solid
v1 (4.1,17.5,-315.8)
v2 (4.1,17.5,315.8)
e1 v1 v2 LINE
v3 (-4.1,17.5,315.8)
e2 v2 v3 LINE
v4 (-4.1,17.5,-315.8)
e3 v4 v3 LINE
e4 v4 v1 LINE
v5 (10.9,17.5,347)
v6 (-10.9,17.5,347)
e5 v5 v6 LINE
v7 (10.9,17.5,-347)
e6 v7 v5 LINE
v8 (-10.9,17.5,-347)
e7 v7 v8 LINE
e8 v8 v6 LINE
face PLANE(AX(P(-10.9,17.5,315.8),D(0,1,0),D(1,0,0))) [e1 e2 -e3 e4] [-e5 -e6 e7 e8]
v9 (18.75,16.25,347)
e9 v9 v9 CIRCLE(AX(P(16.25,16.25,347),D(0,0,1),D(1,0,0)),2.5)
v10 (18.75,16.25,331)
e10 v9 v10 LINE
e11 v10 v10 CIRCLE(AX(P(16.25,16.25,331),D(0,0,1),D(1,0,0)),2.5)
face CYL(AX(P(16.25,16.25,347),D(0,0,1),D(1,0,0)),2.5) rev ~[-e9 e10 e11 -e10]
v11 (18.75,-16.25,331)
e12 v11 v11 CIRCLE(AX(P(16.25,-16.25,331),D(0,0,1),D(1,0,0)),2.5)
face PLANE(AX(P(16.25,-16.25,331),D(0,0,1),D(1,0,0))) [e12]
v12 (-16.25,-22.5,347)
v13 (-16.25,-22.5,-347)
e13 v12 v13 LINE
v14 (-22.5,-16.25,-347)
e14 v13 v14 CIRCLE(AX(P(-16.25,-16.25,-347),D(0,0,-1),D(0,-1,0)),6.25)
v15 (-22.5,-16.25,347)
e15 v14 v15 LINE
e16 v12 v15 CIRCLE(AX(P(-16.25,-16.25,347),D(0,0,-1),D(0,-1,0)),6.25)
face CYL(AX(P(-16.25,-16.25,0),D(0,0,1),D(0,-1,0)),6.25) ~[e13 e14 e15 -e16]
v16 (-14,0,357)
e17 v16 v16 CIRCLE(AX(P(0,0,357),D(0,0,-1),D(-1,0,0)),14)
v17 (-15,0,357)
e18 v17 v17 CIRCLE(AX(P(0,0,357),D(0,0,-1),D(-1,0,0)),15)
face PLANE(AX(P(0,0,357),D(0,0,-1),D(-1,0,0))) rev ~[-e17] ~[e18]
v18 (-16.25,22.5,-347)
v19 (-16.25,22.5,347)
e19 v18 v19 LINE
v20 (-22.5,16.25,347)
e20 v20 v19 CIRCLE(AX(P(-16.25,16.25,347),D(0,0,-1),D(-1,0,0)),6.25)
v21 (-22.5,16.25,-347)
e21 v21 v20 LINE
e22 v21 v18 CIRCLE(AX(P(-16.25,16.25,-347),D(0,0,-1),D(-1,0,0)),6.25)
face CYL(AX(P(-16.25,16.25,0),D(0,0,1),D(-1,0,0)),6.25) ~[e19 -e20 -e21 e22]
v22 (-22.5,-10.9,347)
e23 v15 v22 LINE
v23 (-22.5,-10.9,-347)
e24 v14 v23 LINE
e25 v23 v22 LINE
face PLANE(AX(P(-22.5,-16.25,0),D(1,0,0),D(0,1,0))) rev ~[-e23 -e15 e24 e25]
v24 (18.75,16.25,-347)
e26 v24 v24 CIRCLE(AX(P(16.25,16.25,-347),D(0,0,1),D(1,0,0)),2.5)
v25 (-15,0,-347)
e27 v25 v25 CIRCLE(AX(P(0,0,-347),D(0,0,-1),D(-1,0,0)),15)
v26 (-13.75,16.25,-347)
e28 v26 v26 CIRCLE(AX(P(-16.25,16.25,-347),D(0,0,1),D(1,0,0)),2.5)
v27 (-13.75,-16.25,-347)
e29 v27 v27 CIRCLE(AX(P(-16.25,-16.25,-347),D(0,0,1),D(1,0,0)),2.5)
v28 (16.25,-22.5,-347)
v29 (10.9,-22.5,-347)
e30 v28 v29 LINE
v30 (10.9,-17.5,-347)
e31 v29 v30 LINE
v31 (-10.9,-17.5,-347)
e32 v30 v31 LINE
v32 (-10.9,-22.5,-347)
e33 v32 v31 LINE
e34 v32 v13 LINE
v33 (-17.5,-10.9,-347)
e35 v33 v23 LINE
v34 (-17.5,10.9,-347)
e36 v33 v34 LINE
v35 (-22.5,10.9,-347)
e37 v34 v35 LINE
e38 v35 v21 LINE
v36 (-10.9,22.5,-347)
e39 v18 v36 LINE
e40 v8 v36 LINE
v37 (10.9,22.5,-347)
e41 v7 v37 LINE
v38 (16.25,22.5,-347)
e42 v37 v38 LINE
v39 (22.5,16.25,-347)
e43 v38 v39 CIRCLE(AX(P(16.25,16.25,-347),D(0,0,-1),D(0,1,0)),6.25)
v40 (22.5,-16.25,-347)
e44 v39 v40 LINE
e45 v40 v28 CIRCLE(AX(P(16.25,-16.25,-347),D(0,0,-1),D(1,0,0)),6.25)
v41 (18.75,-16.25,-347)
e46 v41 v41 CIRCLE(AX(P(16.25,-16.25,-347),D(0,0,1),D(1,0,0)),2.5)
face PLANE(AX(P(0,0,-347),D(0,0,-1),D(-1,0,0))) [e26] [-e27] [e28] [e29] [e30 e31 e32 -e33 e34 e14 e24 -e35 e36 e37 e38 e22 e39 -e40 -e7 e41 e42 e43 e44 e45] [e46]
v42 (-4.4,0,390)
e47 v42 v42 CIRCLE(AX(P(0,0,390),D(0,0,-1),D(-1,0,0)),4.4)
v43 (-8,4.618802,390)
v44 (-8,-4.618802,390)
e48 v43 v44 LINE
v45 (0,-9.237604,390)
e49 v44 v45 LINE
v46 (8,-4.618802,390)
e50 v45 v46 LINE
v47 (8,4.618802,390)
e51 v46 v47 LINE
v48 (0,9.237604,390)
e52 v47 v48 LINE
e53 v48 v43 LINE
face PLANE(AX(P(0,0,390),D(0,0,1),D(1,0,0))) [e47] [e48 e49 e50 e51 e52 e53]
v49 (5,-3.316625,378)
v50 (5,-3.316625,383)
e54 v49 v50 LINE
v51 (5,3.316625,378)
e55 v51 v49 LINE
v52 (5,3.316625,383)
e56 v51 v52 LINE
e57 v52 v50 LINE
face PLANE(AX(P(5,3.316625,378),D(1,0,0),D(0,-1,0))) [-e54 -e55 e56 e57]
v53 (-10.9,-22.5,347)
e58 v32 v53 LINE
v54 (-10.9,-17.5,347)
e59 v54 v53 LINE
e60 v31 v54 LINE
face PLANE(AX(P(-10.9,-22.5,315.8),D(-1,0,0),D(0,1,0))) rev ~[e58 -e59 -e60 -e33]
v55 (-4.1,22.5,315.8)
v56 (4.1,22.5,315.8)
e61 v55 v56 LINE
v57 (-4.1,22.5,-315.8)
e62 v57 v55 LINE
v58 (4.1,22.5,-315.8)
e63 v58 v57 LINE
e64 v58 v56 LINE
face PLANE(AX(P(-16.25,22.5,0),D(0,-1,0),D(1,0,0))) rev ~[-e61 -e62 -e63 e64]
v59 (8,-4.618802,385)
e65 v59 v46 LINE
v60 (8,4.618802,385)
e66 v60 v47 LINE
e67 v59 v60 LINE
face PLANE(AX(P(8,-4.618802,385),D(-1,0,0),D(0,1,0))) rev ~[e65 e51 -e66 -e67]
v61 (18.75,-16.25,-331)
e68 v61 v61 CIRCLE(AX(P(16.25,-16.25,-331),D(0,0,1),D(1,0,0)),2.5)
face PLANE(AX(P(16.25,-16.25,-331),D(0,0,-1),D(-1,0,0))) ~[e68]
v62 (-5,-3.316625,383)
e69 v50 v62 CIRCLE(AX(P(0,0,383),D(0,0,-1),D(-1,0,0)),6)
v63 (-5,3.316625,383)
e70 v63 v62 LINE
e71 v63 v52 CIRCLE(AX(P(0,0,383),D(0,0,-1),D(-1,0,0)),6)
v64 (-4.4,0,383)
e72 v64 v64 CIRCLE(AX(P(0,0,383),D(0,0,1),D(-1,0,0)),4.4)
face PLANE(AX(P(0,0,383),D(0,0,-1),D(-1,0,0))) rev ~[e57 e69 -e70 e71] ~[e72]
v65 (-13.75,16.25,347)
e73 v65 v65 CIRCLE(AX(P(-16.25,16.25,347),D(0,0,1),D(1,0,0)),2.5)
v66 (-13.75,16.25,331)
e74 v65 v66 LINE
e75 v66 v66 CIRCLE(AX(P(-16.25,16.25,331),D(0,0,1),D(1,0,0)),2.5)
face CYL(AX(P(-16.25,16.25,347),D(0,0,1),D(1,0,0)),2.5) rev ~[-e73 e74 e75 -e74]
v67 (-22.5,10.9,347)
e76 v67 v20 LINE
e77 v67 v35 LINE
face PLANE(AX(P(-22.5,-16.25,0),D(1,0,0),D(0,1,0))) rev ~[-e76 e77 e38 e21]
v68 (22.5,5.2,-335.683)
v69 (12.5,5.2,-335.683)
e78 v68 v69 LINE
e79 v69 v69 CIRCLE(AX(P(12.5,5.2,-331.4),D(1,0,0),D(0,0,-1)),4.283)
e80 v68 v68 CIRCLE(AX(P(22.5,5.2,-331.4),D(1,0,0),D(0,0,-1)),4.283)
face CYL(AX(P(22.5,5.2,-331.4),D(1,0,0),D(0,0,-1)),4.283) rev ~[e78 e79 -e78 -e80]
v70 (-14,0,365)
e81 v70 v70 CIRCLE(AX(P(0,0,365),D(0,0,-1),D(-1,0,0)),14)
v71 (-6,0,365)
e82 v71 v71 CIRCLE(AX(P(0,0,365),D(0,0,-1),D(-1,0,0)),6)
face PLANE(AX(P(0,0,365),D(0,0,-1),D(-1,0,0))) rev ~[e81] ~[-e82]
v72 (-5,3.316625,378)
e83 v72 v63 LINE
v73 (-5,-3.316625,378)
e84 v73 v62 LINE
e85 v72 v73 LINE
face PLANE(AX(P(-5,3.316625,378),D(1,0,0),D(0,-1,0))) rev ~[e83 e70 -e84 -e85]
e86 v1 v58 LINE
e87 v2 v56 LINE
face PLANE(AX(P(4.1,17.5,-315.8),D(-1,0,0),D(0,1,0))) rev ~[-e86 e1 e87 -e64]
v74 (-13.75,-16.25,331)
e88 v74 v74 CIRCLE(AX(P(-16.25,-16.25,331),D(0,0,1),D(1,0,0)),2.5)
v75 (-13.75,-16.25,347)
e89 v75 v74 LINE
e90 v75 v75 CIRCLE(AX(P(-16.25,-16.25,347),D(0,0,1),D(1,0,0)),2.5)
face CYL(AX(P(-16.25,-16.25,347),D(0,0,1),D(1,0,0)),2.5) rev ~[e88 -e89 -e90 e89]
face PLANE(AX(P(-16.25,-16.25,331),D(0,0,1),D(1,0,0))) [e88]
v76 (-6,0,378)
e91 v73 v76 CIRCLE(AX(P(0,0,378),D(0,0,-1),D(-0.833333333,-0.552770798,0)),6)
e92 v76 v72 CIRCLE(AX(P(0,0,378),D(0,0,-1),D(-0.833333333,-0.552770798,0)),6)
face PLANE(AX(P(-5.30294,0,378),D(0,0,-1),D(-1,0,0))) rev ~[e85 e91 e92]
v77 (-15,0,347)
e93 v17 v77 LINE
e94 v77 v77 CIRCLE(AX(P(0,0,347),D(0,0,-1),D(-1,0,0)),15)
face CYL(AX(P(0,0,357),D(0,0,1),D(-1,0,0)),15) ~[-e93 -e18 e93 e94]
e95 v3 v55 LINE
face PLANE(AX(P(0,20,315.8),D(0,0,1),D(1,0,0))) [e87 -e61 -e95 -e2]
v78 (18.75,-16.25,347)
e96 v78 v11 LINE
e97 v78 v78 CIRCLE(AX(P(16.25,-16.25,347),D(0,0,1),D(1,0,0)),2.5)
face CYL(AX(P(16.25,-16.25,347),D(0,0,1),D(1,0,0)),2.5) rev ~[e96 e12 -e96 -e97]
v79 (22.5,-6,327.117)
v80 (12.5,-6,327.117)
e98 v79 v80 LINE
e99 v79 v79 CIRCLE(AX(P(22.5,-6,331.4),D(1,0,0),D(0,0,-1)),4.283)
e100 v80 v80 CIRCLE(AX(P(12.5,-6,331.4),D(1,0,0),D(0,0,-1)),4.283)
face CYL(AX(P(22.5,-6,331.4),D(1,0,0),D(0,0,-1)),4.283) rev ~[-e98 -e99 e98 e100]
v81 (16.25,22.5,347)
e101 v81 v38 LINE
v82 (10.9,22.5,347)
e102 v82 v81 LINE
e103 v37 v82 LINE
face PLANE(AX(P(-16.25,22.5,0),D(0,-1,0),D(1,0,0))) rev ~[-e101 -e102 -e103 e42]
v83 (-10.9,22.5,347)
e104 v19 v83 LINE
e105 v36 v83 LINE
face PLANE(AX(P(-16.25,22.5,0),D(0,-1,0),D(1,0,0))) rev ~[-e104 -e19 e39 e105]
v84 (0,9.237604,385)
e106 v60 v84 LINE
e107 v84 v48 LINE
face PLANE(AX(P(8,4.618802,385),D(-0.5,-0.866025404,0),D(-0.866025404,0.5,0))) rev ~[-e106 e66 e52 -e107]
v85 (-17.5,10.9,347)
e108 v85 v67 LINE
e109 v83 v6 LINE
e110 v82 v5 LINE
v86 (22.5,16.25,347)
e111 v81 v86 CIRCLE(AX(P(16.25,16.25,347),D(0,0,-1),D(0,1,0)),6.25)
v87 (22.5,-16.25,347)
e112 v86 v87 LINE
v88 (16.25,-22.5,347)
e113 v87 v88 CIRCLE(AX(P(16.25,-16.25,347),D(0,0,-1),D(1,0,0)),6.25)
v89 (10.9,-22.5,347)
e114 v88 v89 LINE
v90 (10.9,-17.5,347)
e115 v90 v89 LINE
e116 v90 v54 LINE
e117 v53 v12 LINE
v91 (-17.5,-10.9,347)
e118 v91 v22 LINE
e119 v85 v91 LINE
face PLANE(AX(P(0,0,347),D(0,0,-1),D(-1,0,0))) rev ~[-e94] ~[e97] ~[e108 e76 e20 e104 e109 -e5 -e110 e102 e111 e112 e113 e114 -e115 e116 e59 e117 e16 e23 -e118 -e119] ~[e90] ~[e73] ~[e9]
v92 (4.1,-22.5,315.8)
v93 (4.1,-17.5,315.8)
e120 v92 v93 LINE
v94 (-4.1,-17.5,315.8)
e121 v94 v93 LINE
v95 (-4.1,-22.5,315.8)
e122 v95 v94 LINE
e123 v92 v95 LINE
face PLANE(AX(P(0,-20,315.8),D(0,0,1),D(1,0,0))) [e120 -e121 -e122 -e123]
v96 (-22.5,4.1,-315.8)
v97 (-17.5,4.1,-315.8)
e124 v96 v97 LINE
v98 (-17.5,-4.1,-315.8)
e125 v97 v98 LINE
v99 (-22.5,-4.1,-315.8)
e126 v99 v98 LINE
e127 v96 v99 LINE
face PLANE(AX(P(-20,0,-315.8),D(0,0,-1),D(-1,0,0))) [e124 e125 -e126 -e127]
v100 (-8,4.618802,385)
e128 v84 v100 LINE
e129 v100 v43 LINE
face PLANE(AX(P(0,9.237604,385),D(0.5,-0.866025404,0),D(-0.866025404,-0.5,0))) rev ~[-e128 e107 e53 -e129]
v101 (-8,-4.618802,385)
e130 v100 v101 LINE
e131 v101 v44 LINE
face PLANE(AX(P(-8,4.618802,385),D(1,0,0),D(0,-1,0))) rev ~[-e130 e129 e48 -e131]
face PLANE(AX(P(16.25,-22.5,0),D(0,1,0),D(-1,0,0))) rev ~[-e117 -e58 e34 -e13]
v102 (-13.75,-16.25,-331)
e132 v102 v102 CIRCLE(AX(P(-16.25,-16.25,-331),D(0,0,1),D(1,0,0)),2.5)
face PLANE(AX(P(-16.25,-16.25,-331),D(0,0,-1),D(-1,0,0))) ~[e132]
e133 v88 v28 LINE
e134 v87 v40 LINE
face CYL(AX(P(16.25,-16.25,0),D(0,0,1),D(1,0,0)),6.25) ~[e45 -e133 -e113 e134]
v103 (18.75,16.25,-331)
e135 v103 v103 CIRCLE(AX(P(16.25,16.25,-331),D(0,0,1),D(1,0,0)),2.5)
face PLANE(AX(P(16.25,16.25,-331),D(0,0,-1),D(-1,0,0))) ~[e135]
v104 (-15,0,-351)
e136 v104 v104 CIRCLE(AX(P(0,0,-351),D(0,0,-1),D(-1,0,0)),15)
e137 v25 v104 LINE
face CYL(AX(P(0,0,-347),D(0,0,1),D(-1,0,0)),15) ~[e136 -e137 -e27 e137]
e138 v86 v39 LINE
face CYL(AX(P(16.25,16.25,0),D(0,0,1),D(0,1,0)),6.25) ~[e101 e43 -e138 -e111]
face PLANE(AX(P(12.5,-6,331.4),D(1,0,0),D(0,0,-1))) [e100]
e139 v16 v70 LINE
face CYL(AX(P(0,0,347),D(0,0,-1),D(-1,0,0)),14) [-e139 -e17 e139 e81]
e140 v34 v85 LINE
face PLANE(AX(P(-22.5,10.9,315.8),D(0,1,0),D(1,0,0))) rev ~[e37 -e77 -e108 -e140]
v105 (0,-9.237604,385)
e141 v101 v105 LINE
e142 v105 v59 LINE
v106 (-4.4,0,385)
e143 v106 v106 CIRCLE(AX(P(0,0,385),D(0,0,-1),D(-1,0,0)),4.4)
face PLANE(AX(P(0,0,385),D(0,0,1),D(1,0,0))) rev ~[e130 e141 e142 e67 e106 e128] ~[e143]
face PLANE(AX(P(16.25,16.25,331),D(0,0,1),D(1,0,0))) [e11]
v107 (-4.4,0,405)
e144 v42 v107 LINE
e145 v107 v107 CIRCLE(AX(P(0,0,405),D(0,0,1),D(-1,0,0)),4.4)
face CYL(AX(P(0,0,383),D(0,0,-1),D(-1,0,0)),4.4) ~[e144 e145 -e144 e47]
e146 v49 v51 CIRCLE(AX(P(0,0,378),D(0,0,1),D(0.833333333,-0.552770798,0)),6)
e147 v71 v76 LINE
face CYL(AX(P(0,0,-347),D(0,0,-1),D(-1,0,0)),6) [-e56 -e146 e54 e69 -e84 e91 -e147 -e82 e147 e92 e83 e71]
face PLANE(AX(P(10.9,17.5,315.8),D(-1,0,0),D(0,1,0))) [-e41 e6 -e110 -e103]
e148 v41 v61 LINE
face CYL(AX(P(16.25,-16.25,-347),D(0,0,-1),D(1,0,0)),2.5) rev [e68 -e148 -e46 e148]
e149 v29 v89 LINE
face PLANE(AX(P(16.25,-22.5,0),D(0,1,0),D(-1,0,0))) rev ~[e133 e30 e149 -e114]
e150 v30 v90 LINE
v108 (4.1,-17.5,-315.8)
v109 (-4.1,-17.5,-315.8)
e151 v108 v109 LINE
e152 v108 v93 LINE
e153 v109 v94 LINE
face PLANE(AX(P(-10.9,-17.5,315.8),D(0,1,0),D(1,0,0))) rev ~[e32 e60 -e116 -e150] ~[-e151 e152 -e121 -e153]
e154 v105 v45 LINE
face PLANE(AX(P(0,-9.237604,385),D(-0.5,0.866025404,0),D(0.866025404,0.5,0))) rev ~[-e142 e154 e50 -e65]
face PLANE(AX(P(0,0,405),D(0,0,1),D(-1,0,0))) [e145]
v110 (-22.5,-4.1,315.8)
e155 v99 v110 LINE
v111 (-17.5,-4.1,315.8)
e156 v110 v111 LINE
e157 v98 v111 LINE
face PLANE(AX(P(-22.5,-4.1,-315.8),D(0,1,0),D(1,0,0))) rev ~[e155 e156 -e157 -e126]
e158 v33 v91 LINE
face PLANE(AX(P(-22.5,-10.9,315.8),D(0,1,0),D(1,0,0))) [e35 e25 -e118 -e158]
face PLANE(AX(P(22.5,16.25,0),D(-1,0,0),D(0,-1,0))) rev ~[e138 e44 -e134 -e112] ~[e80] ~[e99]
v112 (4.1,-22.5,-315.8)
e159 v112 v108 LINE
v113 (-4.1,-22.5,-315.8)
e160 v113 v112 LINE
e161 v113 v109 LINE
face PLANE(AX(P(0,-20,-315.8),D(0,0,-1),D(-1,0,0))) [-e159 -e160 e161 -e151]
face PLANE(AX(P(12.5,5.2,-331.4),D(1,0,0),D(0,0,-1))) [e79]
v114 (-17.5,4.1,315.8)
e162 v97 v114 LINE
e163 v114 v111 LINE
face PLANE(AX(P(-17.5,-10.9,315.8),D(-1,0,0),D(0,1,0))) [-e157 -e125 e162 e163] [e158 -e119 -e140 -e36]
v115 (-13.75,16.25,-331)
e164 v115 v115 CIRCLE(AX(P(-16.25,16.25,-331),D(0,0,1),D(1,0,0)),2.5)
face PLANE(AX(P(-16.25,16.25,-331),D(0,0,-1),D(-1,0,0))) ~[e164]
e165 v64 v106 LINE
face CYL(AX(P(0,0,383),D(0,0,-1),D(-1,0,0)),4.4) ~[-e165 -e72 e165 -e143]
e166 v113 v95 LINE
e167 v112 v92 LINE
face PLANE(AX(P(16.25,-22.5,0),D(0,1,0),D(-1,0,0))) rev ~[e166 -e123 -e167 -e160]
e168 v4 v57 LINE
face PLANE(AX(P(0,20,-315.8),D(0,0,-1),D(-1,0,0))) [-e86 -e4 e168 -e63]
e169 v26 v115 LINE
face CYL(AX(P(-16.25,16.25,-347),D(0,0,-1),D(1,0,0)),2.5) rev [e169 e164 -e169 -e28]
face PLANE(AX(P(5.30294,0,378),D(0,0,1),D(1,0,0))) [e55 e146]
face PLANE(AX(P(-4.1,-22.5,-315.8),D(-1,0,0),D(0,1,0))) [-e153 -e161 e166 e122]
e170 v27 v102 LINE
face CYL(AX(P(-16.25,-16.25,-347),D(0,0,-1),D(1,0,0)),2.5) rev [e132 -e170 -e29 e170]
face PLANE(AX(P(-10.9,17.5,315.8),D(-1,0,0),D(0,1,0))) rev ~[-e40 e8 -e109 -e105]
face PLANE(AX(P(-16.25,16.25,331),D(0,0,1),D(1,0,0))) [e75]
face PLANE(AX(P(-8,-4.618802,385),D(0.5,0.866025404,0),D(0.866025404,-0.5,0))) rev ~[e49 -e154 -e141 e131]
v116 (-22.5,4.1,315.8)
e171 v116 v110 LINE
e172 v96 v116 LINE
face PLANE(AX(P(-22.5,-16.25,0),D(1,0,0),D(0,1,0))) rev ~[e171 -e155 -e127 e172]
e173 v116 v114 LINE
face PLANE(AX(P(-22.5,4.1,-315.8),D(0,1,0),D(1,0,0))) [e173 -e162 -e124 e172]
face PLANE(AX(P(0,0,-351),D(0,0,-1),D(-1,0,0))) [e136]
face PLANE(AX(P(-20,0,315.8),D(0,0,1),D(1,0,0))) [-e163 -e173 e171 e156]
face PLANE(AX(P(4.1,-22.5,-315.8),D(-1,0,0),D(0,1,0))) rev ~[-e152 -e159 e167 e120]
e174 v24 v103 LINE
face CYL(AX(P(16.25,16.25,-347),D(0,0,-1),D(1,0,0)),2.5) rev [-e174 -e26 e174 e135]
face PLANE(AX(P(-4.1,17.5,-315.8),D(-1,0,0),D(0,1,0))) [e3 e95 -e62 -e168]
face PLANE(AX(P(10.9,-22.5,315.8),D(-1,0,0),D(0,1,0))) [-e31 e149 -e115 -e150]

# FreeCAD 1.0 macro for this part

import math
import FreeCAD as App
import Part
import Sketcher

V = App.Vector
Q = App.Units.Quantity

doc = App.newDocument("Part")
params = doc.addObject("Spreadsheet::Sheet", "Params")
for row, (alias, value) in enumerate([
    ("sketch1_radius", "6.25 mm"),
    ("sketch1_width", "32.5 mm"),
    ("pad1_length", "694 mm"),
    ("sketch2_diameter", "5 mm"),
    ("pocket1_length", "16 mm"),
    ("pocket2_length", "10 mm"),
    ("sketch4_diameter", "30 mm"),
    ("pad2_length", "4 mm"),
    ("sketch5_diameter", "30 mm"),
    ("pad3_length", "10 mm"),
    ("sketch6_diameter", "28 mm"),
    ("pad4_length", "18 mm"),
    ("sketch7_diameter", "12 mm"),
    ("pad5_length", "730 mm"),
    ("sketch8_diameter", "8.8 mm"),
    ("pad6_length", "22 mm"),
    ("sketch9_radius", "6 mm"),
    ("pocket3_length", "5 mm"),
    ("sketch10_width", "5 mm"),
    ("sketch10_width2", "6.8 mm"),
    ("pocket4_length", "631.6 mm"),
    ("sketch11_height", "5 mm"),
    ("sketch11_width", "21.8 mm"),
    ("sketch12_width", "5 mm"),
    ("sketch12_height", "21.8 mm"),
    ("sketch13_height", "5 mm"),
    ("sketch13_width", "21.8 mm"),
    ("sketch14_height", "5 mm"),
    ("sketch14_width", "21.8 mm"),
    ("sketch15_width", "5 mm"),
    ("sketch15_height", "21.8 mm"),
    ("sketch16_height", "5 mm"),
    ("sketch16_width", "21.8 mm"),
    ("pad7_length", "5 mm"),
], start=1):
    params.set(f"A{row}", alias)
    params.set(f"B{row}", "=" + value)
    params.setAlias(f"B{row}", alias)

body = doc.addObject("PartDesign::Body", "Body")

# Sketch on XY plane
sketch1 = body.newObject("Sketcher::SketchObject", "Sketch")
sketch1.AttachmentSupport = (doc.getObject("XY_Plane"), [""])
sketch1.MapMode = "FlatFace"
sketch1.addGeometry(Part.LineSegment(V(16, 22, 0), V(-16, 22, 0)), False)
sketch1.addGeometry(Part.ArcOfCircle(Part.Circle(V(-16, 16, 0), V(0, 0, 1), 6), math.radians(90), math.radians(180)), False)
sketch1.addGeometry(Part.LineSegment(V(-22, 16, 0), V(-22, -16, 0)), False)
sketch1.addGeometry(Part.ArcOfCircle(Part.Circle(V(-16, -16, 0), V(0, 0, 1), 6), math.radians(-180), math.radians(-90)), False)
sketch1.addGeometry(Part.LineSegment(V(-16, -22, 0), V(16, -22, 0)), False)
sketch1.addGeometry(Part.ArcOfCircle(Part.Circle(V(16, -16, 0), V(0, 0, 1), 6), math.radians(-90), math.radians(0)), False)
sketch1.addGeometry(Part.LineSegment(V(22, -16, 0), V(22, 16, 0)), False)
sketch1.addGeometry(Part.ArcOfCircle(Part.Circle(V(16, 16, 0), V(0, 0, 1), 6), math.radians(0), math.radians(90)), False)
sketch1.addConstraint(Sketcher.Constraint("Tangent", 0, 2, 1, 1))
sketch1.addConstraint(Sketcher.Constraint("Tangent", 1, 2, 2, 1))
sketch1.addConstraint(Sketcher.Constraint("Tangent", 2, 2, 3, 1))
sketch1.addConstraint(Sketcher.Constraint("Tangent", 3, 2, 4, 1))
sketch1.addConstraint(Sketcher.Constraint("Tangent", 4, 2, 5, 1))
sketch1.addConstraint(Sketcher.Constraint("Tangent", 5, 2, 6, 1))
sketch1.addConstraint(Sketcher.Constraint("Tangent", 6, 2, 7, 1))
sketch1.addConstraint(Sketcher.Constraint("Tangent", 7, 2, 0, 1))
sketch1.addConstraint(Sketcher.Constraint("Horizontal", 0))
sketch1.addConstraint(Sketcher.Constraint("Vertical", 2))
sketch1.addConstraint(Sketcher.Constraint("Horizontal", 4))
sketch1.addConstraint(Sketcher.Constraint("Vertical", 6))
sketch1.addConstraint(Sketcher.Constraint("Equal", 1, 3))
sketch1.addConstraint(Sketcher.Constraint("Equal", 3, 5))
sketch1.addConstraint(Sketcher.Constraint("Equal", 5, 7))
sketch1.addConstraint(Sketcher.Constraint("Symmetric", 1, 3, 5, 3, -1, 1))
sketch1.addConstraint(Sketcher.Constraint("Equal", 4, 2))
sketch1.addConstraint(Sketcher.Constraint("Radius", 1, Q("6.25 mm")))
sketch1.addConstraint(Sketcher.Constraint("DistanceX", 0, 2, 0, 1, Q("32.5 mm")))
sketch1.setExpression("Constraints[17]", "Params.sketch1_radius")
sketch1.setExpression("Constraints[18]", "Params.sketch1_width")
pad1 = body.newObject("PartDesign::Pad", "Pad")
pad1.Profile = sketch1
pad1.setExpression("Length", "Params.pad1_length")
pad1.Midplane = True

# Sketch on XY plane
sketch2 = body.newObject("Sketcher::SketchObject", "Sketch001")
sketch2.AttachmentSupport = (doc.getObject("XY_Plane"), [""])
sketch2.MapMode = "FlatFace"
sketch2.AttachmentOffset = App.Placement(V(0, 0, 347), App.Rotation())
sketch2.addGeometry(Part.Circle(V(16.2, 16.2, 0), V(0, 0, 1), 2.5), False)
sketch2.addGeometry(Part.Circle(V(-16.2, 16.2, 0), V(0, 0, 1), 2.5), False)
sketch2.addGeometry(Part.Circle(V(-16.2, -16.2, 0), V(0, 0, 1), 2.5), False)
sketch2.addGeometry(Part.Circle(V(16.2, -16.2, 0), V(0, 0, 1), 2.5), False)
sketch2.addConstraint(Sketcher.Constraint("Equal", 0, 1))
sketch2.addConstraint(Sketcher.Constraint("Equal", 1, 2))
sketch2.addConstraint(Sketcher.Constraint("Equal", 2, 3))
sketch2.addConstraint(Sketcher.Constraint("Symmetric", 0, 3, 2, 3, -1, 1))
sketch2.addConstraint(Sketcher.Constraint("Symmetric", 1, 3, 3, 3, -1, 1))
sketch2.addConstraint(Sketcher.Constraint("Symmetric", 0, 3, 1, 3, -2))
sketch2.addConstraint(Sketcher.Constraint("Diameter", 0, Q("5 mm")))
sketch2.addConstraint(Sketcher.Constraint("DistanceX", 1, 3, 0, 3, Q("32.5 mm")))
sketch2.addConstraint(Sketcher.Constraint("DistanceY", 2, 3, 1, 3, Q("32.5 mm")))
sketch2.setExpression("Constraints[6]", "Params.sketch2_diameter")
pocket1 = body.newObject("PartDesign::Pocket", "Pocket")
pocket1.Profile = sketch2
pocket1.setExpression("Length", "Params.pocket1_length")
doc.recompute()

mirrored = body.newObject("PartDesign::Mirrored", "Mirrored")
mirrored.Originals = [pocket1]
mirrored.MirrorPlane = (doc.getObject("XY_Plane"), [""])
body.Tip = mirrored

# Sketch on YZ plane
sketch3 = body.newObject("Sketcher::SketchObject", "Sketch002")
sketch3.AttachmentSupport = (doc.getObject("YZ_Plane"), [""])
sketch3.MapMode = "FlatFace"
sketch3.AttachmentOffset = App.Placement(V(0, 0, 22.5), App.Rotation())
sketch3.addGeometry(Part.Circle(V(-6, 331.4, 0), V(0, 0, 1), 4.3), False)
sketch3.addGeometry(Part.Circle(V(5.2, -331.4, 0), V(0, 0, 1), 4.3), False)
sketch3.addConstraint(Sketcher.Constraint("Equal", 0, 1))
sketch3.addConstraint(Sketcher.Constraint("Diameter", 0, Q("8.566 mm")))
sketch3.addConstraint(Sketcher.Constraint("DistanceX", 0, 3, -1, 1, Q("6 mm")))
sketch3.addConstraint(Sketcher.Constraint("DistanceY", -1, 1, 0, 3, Q("331.4 mm")))
sketch3.addConstraint(Sketcher.Constraint("DistanceX", -1, 1, 1, 3, Q("5.2 mm")))
sketch3.addConstraint(Sketcher.Constraint("DistanceY", 1, 3, -1, 1, Q("331.4 mm")))
pocket2 = body.newObject("PartDesign::Pocket", "Pocket001")
pocket2.Profile = sketch3
pocket2.setExpression("Length", "Params.pocket2_length")

# Sketch on XY plane
sketch4 = body.newObject("Sketcher::SketchObject", "Sketch003")
sketch4.AttachmentSupport = (doc.getObject("XY_Plane"), [""])
sketch4.MapMode = "FlatFace"
sketch4.AttachmentOffset = App.Placement(V(0, 0, -347), App.Rotation())
sketch4.addGeometry(Part.Circle(V(0, 0, 0), V(0, 0, 1), 15), False)
sketch4.addConstraint(Sketcher.Constraint("Coincident", 0, 3, -1, 1))
sketch4.addConstraint(Sketcher.Constraint("Diameter", 0, Q("30 mm")))
sketch4.setExpression("Constraints[1]", "Params.sketch4_diameter")
pad2 = body.newObject("PartDesign::Pad", "Pad001")
pad2.Profile = sketch4
pad2.setExpression("Length", "Params.pad2_length")
pad2.Reversed = True

# Sketch on XY plane
sketch5 = body.newObject("Sketcher::SketchObject", "Sketch004")
sketch5.AttachmentSupport = (doc.getObject("XY_Plane"), [""])
sketch5.MapMode = "FlatFace"
sketch5.AttachmentOffset = App.Placement(V(0, 0, 357), App.Rotation())
sketch5.addGeometry(Part.Circle(V(0, 0, 0), V(0, 0, 1), 15), False)
sketch5.addConstraint(Sketcher.Constraint("Coincident", 0, 3, -1, 1))
sketch5.addConstraint(Sketcher.Constraint("Diameter", 0, Q("30 mm")))
sketch5.setExpression("Constraints[1]", "Params.sketch5_diameter")
pad3 = body.newObject("PartDesign::Pad", "Pad002")
pad3.Profile = sketch5
pad3.setExpression("Length", "Params.pad3_length")
pad3.Reversed = True

# Sketch on XY plane
sketch6 = body.newObject("Sketcher::SketchObject", "Sketch005")
sketch6.AttachmentSupport = (doc.getObject("XY_Plane"), [""])
sketch6.MapMode = "FlatFace"
sketch6.AttachmentOffset = App.Placement(V(0, 0, 347), App.Rotation())
sketch6.addGeometry(Part.Circle(V(0, 0, 0), V(0, 0, 1), 14), False)
sketch6.addConstraint(Sketcher.Constraint("Coincident", 0, 3, -1, 1))
sketch6.addConstraint(Sketcher.Constraint("Diameter", 0, Q("28 mm")))
sketch6.setExpression("Constraints[1]", "Params.sketch6_diameter")
pad4 = body.newObject("PartDesign::Pad", "Pad003")
pad4.Profile = sketch6
pad4.setExpression("Length", "Params.pad4_length")

# Sketch on XY plane
sketch7 = body.newObject("Sketcher::SketchObject", "Sketch006")
sketch7.AttachmentSupport = (doc.getObject("XY_Plane"), [""])
sketch7.MapMode = "FlatFace"
sketch7.AttachmentOffset = App.Placement(V(0, 0, -347), App.Rotation())
sketch7.addGeometry(Part.Circle(V(0, 0, 0), V(0, 0, 1), 6), False)
sketch7.addConstraint(Sketcher.Constraint("Coincident", 0, 3, -1, 1))
sketch7.addConstraint(Sketcher.Constraint("Diameter", 0, Q("12 mm")))
sketch7.setExpression("Constraints[1]", "Params.sketch7_diameter")
pad5 = body.newObject("PartDesign::Pad", "Pad004")
pad5.Profile = sketch7
pad5.setExpression("Length", "Params.pad5_length")

# Sketch on XY plane
sketch8 = body.newObject("Sketcher::SketchObject", "Sketch007")
sketch8.AttachmentSupport = (doc.getObject("XY_Plane"), [""])
sketch8.MapMode = "FlatFace"
sketch8.AttachmentOffset = App.Placement(V(0, 0, 383), App.Rotation())
sketch8.addGeometry(Part.Circle(V(0, 0, 0), V(0, 0, 1), 4.4), False)
sketch8.addConstraint(Sketcher.Constraint("Coincident", 0, 3, -1, 1))
sketch8.addConstraint(Sketcher.Constraint("Diameter", 0, Q("8.8 mm")))
sketch8.setExpression("Constraints[1]", "Params.sketch8_diameter")
pad6 = body.newObject("PartDesign::Pad", "Pad005")
pad6.Profile = sketch8
pad6.setExpression("Length", "Params.pad6_length")

# Sketch on XY plane
sketch9 = body.newObject("Sketcher::SketchObject", "Sketch008")
sketch9.AttachmentSupport = (doc.getObject("XY_Plane"), [""])
sketch9.MapMode = "FlatFace"
sketch9.AttachmentOffset = App.Placement(V(0, 0, 378), App.Rotation())
sketch9.addGeometry(Part.LineSegment(V(-5, -3, 0), V(-5, 3, 0)), False)
sketch9.addGeometry(Part.ArcOfCircle(Part.Circle(V(0, 0, 0), V(0, 0, 1), 6), math.radians(146), math.radians(214)), False)
sketch9.addGeometry(Part.LineSegment(V(5, 3, 0), V(5, -3, 0)), False)
sketch9.addGeometry(Part.ArcOfCircle(Part.Circle(V(0, 0, 0), V(0, 0, 1), 6), math.radians(-34), math.radians(34)), False)
sketch9.addConstraint(Sketcher.Constraint("Coincident", 0, 1, 1, 2))
sketch9.addConstraint(Sketcher.Constraint("Coincident", 1, 1, 0, 2))
sketch9.addConstraint(Sketcher.Constraint("Coincident", 2, 1, 3, 2))
sketch9.addConstraint(Sketcher.Constraint("Coincident", 3, 1, 2, 2))
sketch9.addConstraint(Sketcher.Constraint("Vertical", 0))
sketch9.addConstraint(Sketcher.Constraint("Vertical", 2))
sketch9.addConstraint(Sketcher.Constraint("Coincident", 1, 3, -1, 1))
sketch9.addConstraint(Sketcher.Constraint("Coincident", 3, 3, -1, 1))
sketch9.addConstraint(Sketcher.Constraint("Equal", 1, 3))
sketch9.addConstraint(Sketcher.Constraint("Horizontal", 1, 1, 2, 1))
sketch9.addConstraint(Sketcher.Constraint("Radius", 1, Q("6 mm")))
sketch9.addConstraint(Sketcher.Constraint("DistanceX", 0, 1, -1, 1, Q("5 mm")))
sketch9.setExpression("Constraints[10]", "Params.sketch9_radius")
pocket3 = body.newObject("PartDesign::Pocket", "Pocket002")
pocket3.Profile = sketch9
pocket3.setExpression("Length", "Params.pocket3_length")
pocket3.Reversed = True

# Sketch on XY plane
sketch10 = body.newObject("Sketcher::SketchObject", "Sketch009")
sketch10.AttachmentSupport = (doc.getObject("XY_Plane"), [""])
sketch10.MapMode = "FlatFace"
sketch10.AttachmentOffset = App.Placement(V(0, 0, -315.8), App.Rotation())
sketch10.addGeometry(Part.LineSegment(V(-11, 22, 0), V(-11, 18, 0)), False)
sketch10.addGeometry(Part.LineSegment(V(-11, 18, 0), V(-4, 18, 0)), False)
sketch10.addGeometry(Part.LineSegment(V(-4, 18, 0), V(-4, 22, 0)), False)
sketch10.addGeometry(Part.LineSegment(V(-4, 22, 0), V(-11, 22, 0)), False)
sketch10.addGeometry(Part.LineSegment(V(4, 22, 0), V(4, 18, 0)), False)
sketch10.addGeometry(Part.LineSegment(V(4, 18, 0), V(11, 18, 0)), False)
sketch10.addGeometry(Part.LineSegment(V(11, 18, 0), V(11, 22, 0)), False)
sketch10.addGeometry(Part.LineSegment(V(11, 22, 0), V(4, 22, 0)), False)
sketch10.addGeometry(Part.LineSegment(V(4, -18, 0), V(4, -22, 0)), False)
sketch10.addGeometry(Part.LineSegment(V(4, -22, 0), V(11, -22, 0)), False)
sketch10.addGeometry(Part.LineSegment(V(11, -22, 0), V(11, -18, 0)), False)
sketch10.addGeometry(Part.LineSegment(V(11, -18, 0), V(4, -18, 0)), False)
sketch10.addGeometry(Part.LineSegment(V(-11, -18, 0), V(-11, -22, 0)), False)
sketch10.addGeometry(Part.LineSegment(V(-11, -22, 0), V(-4, -22, 0)), False)
sketch10.addGeometry(Part.LineSegment(V(-4, -22, 0), V(-4, -18, 0)), False)
sketch10.addGeometry(Part.LineSegment(V(-4, -18, 0), V(-11, -18, 0)), False)
sketch10.addGeometry(Part.LineSegment(V(-22, -4, 0), V(-22, -11, 0)), False)
sketch10.addGeometry(Part.LineSegment(V(-22, -11, 0), V(-18, -11, 0)), False)
sketch10.addGeometry(Part.LineSegment(V(-18, -11, 0), V(-18, -4, 0)), False)
sketch10.addGeometry(Part.LineSegment(V(-18, -4, 0), V(-22, -4, 0)), False)
sketch10.addGeometry(Part.LineSegment(V(-22, 11, 0), V(-22, 4, 0)), False)
sketch10.addGeometry(Part.LineSegment(V(-22, 4, 0), V(-18, 4, 0)), False)
sketch10.addGeometry(Part.LineSegment(V(-18, 4, 0), V(-18, 11, 0)), False)
sketch10.addGeometry(Part.LineSegment(V(-18, 11, 0), V(-22, 11, 0)), False)
sketch10.addConstraint(Sketcher.Constraint("Coincident", 0, 2, 1, 1))
sketch10.addConstraint(Sketcher.Constraint("Coincident", 1, 2, 2, 1))
sketch10.addConstraint(Sketcher.Constraint("Coincident", 2, 2, 3, 1))
sketch10.addConstraint(Sketcher.Constraint("Coincident", 3, 2, 0, 1))
sketch10.addConstraint(Sketcher.Constraint("Coincident", 4, 2, 5, 1))
sketch10.addConstraint(Sketcher.Constraint("Coincident", 5, 2, 6, 1))
sketch10.addConstraint(Sketcher.Constraint("Coincident", 6, 2, 7, 1))
sketch10.addConstraint(Sketcher.Constraint("Coincident", 7, 2, 4, 1))
sketch10.addConstraint(Sketcher.Constraint("Coincident", 8, 2, 9, 1))
sketch10.addConstraint(Sketcher.Constraint("Coincident", 9, 2, 10, 1))
sketch10.addConstraint(Sketcher.Constraint("Coincident", 10, 2, 11, 1))
sketch10.addConstraint(Sketcher.Constraint("Coincident", 11, 2, 8, 1))
sketch10.addConstraint(Sketcher.Constraint("Coincident", 12, 2, 13, 1))
sketch10.addConstraint(Sketcher.Constraint("Coincident", 13, 2, 14, 1))
sketch10.addConstraint(Sketcher.Constraint("Coincident", 14, 2, 15, 1))
sketch10.addConstraint(Sketcher.Constraint("Coincident", 15, 2, 12, 1))
sketch10.addConstraint(Sketcher.Constraint("Coincident", 16, 2, 17, 1))
sketch10.addConstraint(Sketcher.Constraint("Coincident", 17, 2, 18, 1))
sketch10.addConstraint(Sketcher.Constraint("Coincident", 18, 2, 19, 1))
sketch10.addConstraint(Sketcher.Constraint("Coincident", 19, 2, 16, 1))
sketch10.addConstraint(Sketcher.Constraint("Coincident", 20, 2, 21, 1))
sketch10.addConstraint(Sketcher.Constraint("Coincident", 21, 2, 22, 1))
sketch10.addConstraint(Sketcher.Constraint("Coincident", 22, 2, 23, 1))
sketch10.addConstraint(Sketcher.Constraint("Coincident", 23, 2, 20, 1))
sketch10.addConstraint(Sketcher.Constraint("Vertical", 0))
sketch10.addConstraint(Sketcher.Constraint("Horizontal", 1))
sketch10.addConstraint(Sketcher.Constraint("Vertical", 2))
sketch10.addConstraint(Sketcher.Constraint("Horizontal", 3))
sketch10.addConstraint(Sketcher.Constraint("Vertical", 4))
sketch10.addConstraint(Sketcher.Constraint("Horizontal", 5))
sketch10.addConstraint(Sketcher.Constraint("Vertical", 6))
sketch10.addConstraint(Sketcher.Constraint("Horizontal", 7))
sketch10.addConstraint(Sketcher.Constraint("Vertical", 8))
sketch10.addConstraint(Sketcher.Constraint("Horizontal", 9))
sketch10.addConstraint(Sketcher.Constraint("Vertical", 10))
sketch10.addConstraint(Sketcher.Constraint("Horizontal", 11))
sketch10.addConstraint(Sketcher.Constraint("Vertical", 12))
sketch10.addConstraint(Sketcher.Constraint("Horizontal", 13))
sketch10.addConstraint(Sketcher.Constraint("Vertical", 14))
sketch10.addConstraint(Sketcher.Constraint("Horizontal", 15))
sketch10.addConstraint(Sketcher.Constraint("Vertical", 16))
sketch10.addConstraint(Sketcher.Constraint("Horizontal", 17))
sketch10.addConstraint(Sketcher.Constraint("Vertical", 18))
sketch10.addConstraint(Sketcher.Constraint("Horizontal", 19))
sketch10.addConstraint(Sketcher.Constraint("Vertical", 20))
sketch10.addConstraint(Sketcher.Constraint("Horizontal", 21))
sketch10.addConstraint(Sketcher.Constraint("Vertical", 22))
sketch10.addConstraint(Sketcher.Constraint("Horizontal", 23))
sketch10.addConstraint(Sketcher.Constraint("Symmetric", 2, 2, 8, 2, -1, 1))
sketch10.addConstraint(Sketcher.Constraint("Symmetric", 0, 2, 10, 2, -1, 1))
sketch10.addConstraint(Sketcher.Constraint("Symmetric", 6, 2, 12, 2, -1, 1))
sketch10.addConstraint(Sketcher.Constraint("Symmetric", 4, 2, 14, 2, -1, 1))
sketch10.addConstraint(Sketcher.Constraint("Symmetric", 1, 2, 4, 2, -2))
sketch10.addConstraint(Sketcher.Constraint("Symmetric", 3, 2, 6, 2, -2))
sketch10.addConstraint(Sketcher.Constraint("Symmetric", 19, 2, 20, 2, -1))
sketch10.addConstraint(Sketcher.Constraint("Symmetric", 17, 2, 22, 2, -1))
sketch10.addConstraint(Sketcher.Constraint("Equal", 23, 0))
sketch10.addConstraint(Sketcher.Constraint("Equal", 15, 16))
sketch10.addConstraint(Sketcher.Constraint("DistanceX", 17, 1, 17, 2, Q("5 mm")))
sketch10.addConstraint(Sketcher.Constraint("DistanceX", 1, 1, 1, 2, Q("6.8 mm")))
sketch10.addConstraint(Sketcher.Constraint("DistanceX", 0, 2, 4, 2, Q("15 mm")))
sketch10.addConstraint(Sketcher.Constraint("DistanceY", 8, 2, 4, 2, Q("40 mm")))
sketch10.addConstraint(Sketcher.Constraint("DistanceY", 16, 2, 20, 2, Q("15 mm")))
sketch10.addConstraint(Sketcher.Constraint("DistanceX", 16, 2, -1, 1, Q("22.5 mm")))
sketch10.setExpression("Constraints[58]", "Params.sketch10_width")
sketch10.setExpression("Constraints[59]", "Params.sketch10_width2")
pocket4 = body.newObject("PartDesign::Pocket", "Pocket003")
pocket4.Profile = sketch10
pocket4.setExpression("Length", "Params.pocket4_length")
pocket4.Reversed = True

# Sketch on XY plane
sketch11 = body.newObject("Sketcher::SketchObject", "Sketch010")
sketch11.AttachmentSupport = (doc.getObject("XY_Plane"), [""])
sketch11.MapMode = "FlatFace"
sketch11.AttachmentOffset = App.Placement(V(0, 0, 315.8), App.Rotation())
sketch11.addGeometry(Part.LineSegment(V(-11, 22, 0), V(-11, 18, 0)), False)
sketch11.addGeometry(Part.LineSegment(V(-11, 18, 0), V(11, 18, 0)), False)
sketch11.addGeometry(Part.LineSegment(V(11, 18, 0), V(11, 22, 0)), False)
sketch11.addGeometry(Part.LineSegment(V(11, 22, 0), V(-11, 22, 0)), False)
sketch11.addConstraint(Sketcher.Constraint("Coincident", 0, 2, 1, 1))
sketch11.addConstraint(Sketcher.Constraint("Coincident", 1, 2, 2, 1))
sketch11.addConstraint(Sketcher.Constraint("Coincident", 2, 2, 3, 1))
sketch11.addConstraint(Sketcher.Constraint("Coincident", 3, 2, 0, 1))
sketch11.addConstraint(Sketcher.Constraint("Vertical", 0))
sketch11.addConstraint(Sketcher.Constraint("Horizontal", 1))
sketch11.addConstraint(Sketcher.Constraint("Vertical", 2))
sketch11.addConstraint(Sketcher.Constraint("Horizontal", 3))
sketch11.addConstraint(Sketcher.Constraint("DistanceY", 0, 2, 0, 1, Q("5 mm")))
sketch11.addConstraint(Sketcher.Constraint("DistanceX", 1, 1, 1, 2, Q("21.8 mm")))
sketch11.addConstraint(Sketcher.Constraint("DistanceX", 0, 2, -1, 1, Q("10.9 mm")))
sketch11.addConstraint(Sketcher.Constraint("DistanceY", -1, 1, 0, 2, Q("17.5 mm")))
sketch11.setExpression("Constraints[8]", "Params.sketch11_height")
sketch11.setExpression("Constraints[9]", "Params.sketch11_width")
pocket5 = body.newObject("PartDesign::Pocket", "Pocket004")
pocket5.Profile = sketch11
pocket5.Type = "UpToFirst"
pocket5.Reversed = True

# Sketch on XY plane
sketch12 = body.newObject("Sketcher::SketchObject", "Sketch011")
sketch12.AttachmentSupport = (doc.getObject("XY_Plane"), [""])
sketch12.MapMode = "FlatFace"
sketch12.AttachmentOffset = App.Placement(V(0, 0, 315.8), App.Rotation())
sketch12.addGeometry(Part.LineSegment(V(-22, 11, 0), V(-22, -11, 0)), False)
sketch12.addGeometry(Part.LineSegment(V(-22, -11, 0), V(-18, -11, 0)), False)
sketch12.addGeometry(Part.LineSegment(V(-18, -11, 0), V(-18, 11, 0)), False)
sketch12.addGeometry(Part.LineSegment(V(-18, 11, 0), V(-22, 11, 0)), False)
sketch12.addConstraint(Sketcher.Constraint("Coincident", 0, 2, 1, 1))
sketch12.addConstraint(Sketcher.Constraint("Coincident", 1, 2, 2, 1))
sketch12.addConstraint(Sketcher.Constraint("Coincident", 2, 2, 3, 1))
sketch12.addConstraint(Sketcher.Constraint("Coincident", 3, 2, 0, 1))
sketch12.addConstraint(Sketcher.Constraint("Vertical", 0))
sketch12.addConstraint(Sketcher.Constraint("Horizontal", 1))
sketch12.addConstraint(Sketcher.Constraint("Vertical", 2))
sketch12.addConstraint(Sketcher.Constraint("Horizontal", 3))
sketch12.addConstraint(Sketcher.Constraint("DistanceX", 1, 1, 1, 2, Q("5 mm")))
sketch12.addConstraint(Sketcher.Constraint("DistanceY", 0, 2, 0, 1, Q("21.8 mm")))
sketch12.addConstraint(Sketcher.Constraint("DistanceX", 0, 2, -1, 1, Q("22.5 mm")))
sketch12.addConstraint(Sketcher.Constraint("DistanceY", 0, 2, -1, 1, Q("10.9 mm")))
sketch12.setExpression("Constraints[8]", "Params.sketch12_width")
sketch12.setExpression("Constraints[9]", "Params.sketch12_height")
pocket6 = body.newObject("PartDesign::Pocket", "Pocket005")
pocket6.Profile = sketch12
pocket6.Type = "UpToFirst"
pocket6.Reversed = True

# Sketch on XY plane
sketch13 = body.newObject("Sketcher::SketchObject", "Sketch012")
sketch13.AttachmentSupport = (doc.getObject("XY_Plane"), [""])
sketch13.MapMode = "FlatFace"
sketch13.AttachmentOffset = App.Placement(V(0, 0, 315.8), App.Rotation())
sketch13.addGeometry(Part.LineSegment(V(-11, -18, 0), V(-11, -22, 0)), False)
sketch13.addGeometry(Part.LineSegment(V(-11, -22, 0), V(11, -22, 0)), False)
sketch13.addGeometry(Part.LineSegment(V(11, -22, 0), V(11, -18, 0)), False)
sketch13.addGeometry(Part.LineSegment(V(11, -18, 0), V(-11, -18, 0)), False)
sketch13.addConstraint(Sketcher.Constraint("Coincident", 0, 2, 1, 1))
sketch13.addConstraint(Sketcher.Constraint("Coincident", 1, 2, 2, 1))
sketch13.addConstraint(Sketcher.Constraint("Coincident", 2, 2, 3, 1))
sketch13.addConstraint(Sketcher.Constraint("Coincident", 3, 2, 0, 1))
sketch13.addConstraint(Sketcher.Constraint("Vertical", 0))
sketch13.addConstraint(Sketcher.Constraint("Horizontal", 1))
sketch13.addConstraint(Sketcher.Constraint("Vertical", 2))
sketch13.addConstraint(Sketcher.Constraint("Horizontal", 3))
sketch13.addConstraint(Sketcher.Constraint("DistanceY", 0, 2, 0, 1, Q("5 mm")))
sketch13.addConstraint(Sketcher.Constraint("DistanceX", 1, 1, 1, 2, Q("21.8 mm")))
sketch13.addConstraint(Sketcher.Constraint("DistanceX", 0, 2, -1, 1, Q("10.9 mm")))
sketch13.addConstraint(Sketcher.Constraint("DistanceY", 0, 2, -1, 1, Q("22.5 mm")))
sketch13.setExpression("Constraints[8]", "Params.sketch13_height")
sketch13.setExpression("Constraints[9]", "Params.sketch13_width")
pocket7 = body.newObject("PartDesign::Pocket", "Pocket006")
pocket7.Profile = sketch13
pocket7.Type = "UpToFirst"
pocket7.Reversed = True

# Sketch on XY plane
sketch14 = body.newObject("Sketcher::SketchObject", "Sketch013")
sketch14.AttachmentSupport = (doc.getObject("XY_Plane"), [""])
sketch14.MapMode = "FlatFace"
sketch14.AttachmentOffset = App.Placement(V(0, 0, -315.8), App.Rotation())
sketch14.addGeometry(Part.LineSegment(V(11, 22, 0), V(11, 18, 0)), False)
sketch14.addGeometry(Part.LineSegment(V(11, 18, 0), V(-11, 18, 0)), False)
sketch14.addGeometry(Part.LineSegment(V(-11, 18, 0), V(-11, 22, 0)), False)
sketch14.addGeometry(Part.LineSegment(V(-11, 22, 0), V(11, 22, 0)), False)
sketch14.addConstraint(Sketcher.Constraint("Coincident", 0, 2, 1, 1))
sketch14.addConstraint(Sketcher.Constraint("Coincident", 1, 2, 2, 1))
sketch14.addConstraint(Sketcher.Constraint("Coincident", 2, 2, 3, 1))
sketch14.addConstraint(Sketcher.Constraint("Coincident", 3, 2, 0, 1))
sketch14.addConstraint(Sketcher.Constraint("Vertical", 0))
sketch14.addConstraint(Sketcher.Constraint("Horizontal", 1))
sketch14.addConstraint(Sketcher.Constraint("Vertical", 2))
sketch14.addConstraint(Sketcher.Constraint("Horizontal", 3))
sketch14.addConstraint(Sketcher.Constraint("DistanceY", 0, 2, 0, 1, Q("5 mm")))
sketch14.addConstraint(Sketcher.Constraint("DistanceX", 1, 2, 1, 1, Q("21.8 mm")))
sketch14.addConstraint(Sketcher.Constraint("DistanceX", -1, 1, 0, 2, Q("10.9 mm")))
sketch14.addConstraint(Sketcher.Constraint("DistanceY", -1, 1, 0, 2, Q("17.5 mm")))
sketch14.setExpression("Constraints[8]", "Params.sketch14_height")
sketch14.setExpression("Constraints[9]", "Params.sketch14_width")
pocket8 = body.newObject("PartDesign::Pocket", "Pocket007")
pocket8.Profile = sketch14
pocket8.Type = "UpToFirst"

# Sketch on XY plane
sketch15 = body.newObject("Sketcher::SketchObject", "Sketch014")
sketch15.AttachmentSupport = (doc.getObject("XY_Plane"), [""])
sketch15.MapMode = "FlatFace"
sketch15.AttachmentOffset = App.Placement(V(0, 0, -315.8), App.Rotation())
sketch15.addGeometry(Part.LineSegment(V(-18, 11, 0), V(-18, -11, 0)), False)
sketch15.addGeometry(Part.LineSegment(V(-18, -11, 0), V(-22, -11, 0)), False)
sketch15.addGeometry(Part.LineSegment(V(-22, -11, 0), V(-22, 11, 0)), False)
sketch15.addGeometry(Part.LineSegment(V(-22, 11, 0), V(-18, 11, 0)), False)
sketch15.addConstraint(Sketcher.Constraint("Coincident", 0, 2, 1, 1))
sketch15.addConstraint(Sketcher.Constraint("Coincident", 1, 2, 2, 1))
sketch15.addConstraint(Sketcher.Constraint("Coincident", 2, 2, 3, 1))
sketch15.addConstraint(Sketcher.Constraint("Coincident", 3, 2, 0, 1))
sketch15.addConstraint(Sketcher.Constraint("Vertical", 0))
sketch15.addConstraint(Sketcher.Constraint("Horizontal", 1))
sketch15.addConstraint(Sketcher.Constraint("Vertical", 2))
sketch15.addConstraint(Sketcher.Constraint("Horizontal", 3))
sketch15.addConstraint(Sketcher.Constraint("DistanceX", 1, 2, 1, 1, Q("5 mm")))
sketch15.addConstraint(Sketcher.Constraint("DistanceY", 0, 2, 0, 1, Q("21.8 mm")))
sketch15.addConstraint(Sketcher.Constraint("DistanceX", 0, 2, -1, 1, Q("17.5 mm")))
sketch15.addConstraint(Sketcher.Constraint("DistanceY", 0, 2, -1, 1, Q("10.9 mm")))
sketch15.setExpression("Constraints[8]", "Params.sketch15_width")
sketch15.setExpression("Constraints[9]", "Params.sketch15_height")
pocket9 = body.newObject("PartDesign::Pocket", "Pocket008")
pocket9.Profile = sketch15
pocket9.Type = "UpToFirst"

# Sketch on XY plane
sketch16 = body.newObject("Sketcher::SketchObject", "Sketch015")
sketch16.AttachmentSupport = (doc.getObject("XY_Plane"), [""])
sketch16.MapMode = "FlatFace"
sketch16.AttachmentOffset = App.Placement(V(0, 0, -315.8), App.Rotation())
sketch16.addGeometry(Part.LineSegment(V(11, -18, 0), V(11, -22, 0)), False)
sketch16.addGeometry(Part.LineSegment(V(11, -22, 0), V(-11, -22, 0)), False)
sketch16.addGeometry(Part.LineSegment(V(-11, -22, 0), V(-11, -18, 0)), False)
sketch16.addGeometry(Part.LineSegment(V(-11, -18, 0), V(11, -18, 0)), False)
sketch16.addConstraint(Sketcher.Constraint("Coincident", 0, 2, 1, 1))
sketch16.addConstraint(Sketcher.Constraint("Coincident", 1, 2, 2, 1))
sketch16.addConstraint(Sketcher.Constraint("Coincident", 2, 2, 3, 1))
sketch16.addConstraint(Sketcher.Constraint("Coincident", 3, 2, 0, 1))
sketch16.addConstraint(Sketcher.Constraint("Vertical", 0))
sketch16.addConstraint(Sketcher.Constraint("Horizontal", 1))
sketch16.addConstraint(Sketcher.Constraint("Vertical", 2))
sketch16.addConstraint(Sketcher.Constraint("Horizontal", 3))
sketch16.addConstraint(Sketcher.Constraint("DistanceY", 0, 2, 0, 1, Q("5 mm")))
sketch16.addConstraint(Sketcher.Constraint("DistanceX", 1, 2, 1, 1, Q("21.8 mm")))
sketch16.addConstraint(Sketcher.Constraint("DistanceX", -1, 1, 0, 2, Q("10.9 mm")))
sketch16.addConstraint(Sketcher.Constraint("DistanceY", 0, 2, -1, 1, Q("22.5 mm")))
sketch16.setExpression("Constraints[8]", "Params.sketch16_height")
sketch16.setExpression("Constraints[9]", "Params.sketch16_width")
pocket10 = body.newObject("PartDesign::Pocket", "Pocket009")
pocket10.Profile = sketch16
pocket10.Type = "UpToFirst"

# Sketch on XY plane
sketch17 = body.newObject("Sketcher::SketchObject", "Sketch016")
sketch17.AttachmentSupport = (doc.getObject("XY_Plane"), [""])
sketch17.MapMode = "FlatFace"
sketch17.AttachmentOffset = App.Placement(V(0, 0, 385), App.Rotation())
sketch17.addGeometry(Part.LineSegment(V(0, -9, 0), V(8, -5, 0)), False)
sketch17.addGeometry(Part.LineSegment(V(8, -5, 0), V(8, 5, 0)), False)
sketch17.addGeometry(Part.LineSegment(V(8, 5, 0), V(0, 9, 0)), False)
sketch17.addGeometry(Part.LineSegment(V(0, 9, 0), V(-8, 5, 0)), False)
sketch17.addGeometry(Part.LineSegment(V(-8, 5, 0), V(-8, -5, 0)), False)
sketch17.addGeometry(Part.LineSegment(V(-8, -5, 0), V(0, -9, 0)), False)
sketch17.addConstraint(Sketcher.Constraint("Coincident", 0, 2, 1, 1))
sketch17.addConstraint(Sketcher.Constraint("Coincident", 1, 2, 2, 1))
sketch17.addConstraint(Sketcher.Constraint("Coincident", 2, 2, 3, 1))
sketch17.addConstraint(Sketcher.Constraint("Coincident", 3, 2, 4, 1))
sketch17.addConstraint(Sketcher.Constraint("Coincident", 4, 2, 5, 1))
sketch17.addConstraint(Sketcher.Constraint("Coincident", 5, 2, 0, 1))
sketch17.addConstraint(Sketcher.Constraint("Vertical", 1))
sketch17.addConstraint(Sketcher.Constraint("Vertical", 4))
sketch17.addConstraint(Sketcher.Constraint("Symmetric", 0, 2, 3, 2, -1, 1))
sketch17.addConstraint(Sketcher.Constraint("Symmetric", 2, 2, 5, 2, -1, 1))
sketch17.addConstraint(Sketcher.Constraint("PointOnObject", 2, 2, -2))
sketch17.addConstraint(Sketcher.Constraint("Parallel", 2, 5))
sketch17.addConstraint(Sketcher.Constraint("Horizontal", 1, 2, 3, 2))
sketch17.addConstraint(Sketcher.Constraint("Angle", 0, Q("30 deg")))
sketch17.addConstraint(Sketcher.Constraint("DistanceX", -1, 1, 0, 2, Q("8 mm")))
sketch17.addConstraint(Sketcher.Constraint("DistanceY", 1, 1, 1, 2, Q("9.237604 mm")))
pad7 = body.newObject("PartDesign::Pad", "Pad006")
pad7.Profile = sketch17
pad7.setExpression("Length", "Params.pad7_length")

doc.recompute()
